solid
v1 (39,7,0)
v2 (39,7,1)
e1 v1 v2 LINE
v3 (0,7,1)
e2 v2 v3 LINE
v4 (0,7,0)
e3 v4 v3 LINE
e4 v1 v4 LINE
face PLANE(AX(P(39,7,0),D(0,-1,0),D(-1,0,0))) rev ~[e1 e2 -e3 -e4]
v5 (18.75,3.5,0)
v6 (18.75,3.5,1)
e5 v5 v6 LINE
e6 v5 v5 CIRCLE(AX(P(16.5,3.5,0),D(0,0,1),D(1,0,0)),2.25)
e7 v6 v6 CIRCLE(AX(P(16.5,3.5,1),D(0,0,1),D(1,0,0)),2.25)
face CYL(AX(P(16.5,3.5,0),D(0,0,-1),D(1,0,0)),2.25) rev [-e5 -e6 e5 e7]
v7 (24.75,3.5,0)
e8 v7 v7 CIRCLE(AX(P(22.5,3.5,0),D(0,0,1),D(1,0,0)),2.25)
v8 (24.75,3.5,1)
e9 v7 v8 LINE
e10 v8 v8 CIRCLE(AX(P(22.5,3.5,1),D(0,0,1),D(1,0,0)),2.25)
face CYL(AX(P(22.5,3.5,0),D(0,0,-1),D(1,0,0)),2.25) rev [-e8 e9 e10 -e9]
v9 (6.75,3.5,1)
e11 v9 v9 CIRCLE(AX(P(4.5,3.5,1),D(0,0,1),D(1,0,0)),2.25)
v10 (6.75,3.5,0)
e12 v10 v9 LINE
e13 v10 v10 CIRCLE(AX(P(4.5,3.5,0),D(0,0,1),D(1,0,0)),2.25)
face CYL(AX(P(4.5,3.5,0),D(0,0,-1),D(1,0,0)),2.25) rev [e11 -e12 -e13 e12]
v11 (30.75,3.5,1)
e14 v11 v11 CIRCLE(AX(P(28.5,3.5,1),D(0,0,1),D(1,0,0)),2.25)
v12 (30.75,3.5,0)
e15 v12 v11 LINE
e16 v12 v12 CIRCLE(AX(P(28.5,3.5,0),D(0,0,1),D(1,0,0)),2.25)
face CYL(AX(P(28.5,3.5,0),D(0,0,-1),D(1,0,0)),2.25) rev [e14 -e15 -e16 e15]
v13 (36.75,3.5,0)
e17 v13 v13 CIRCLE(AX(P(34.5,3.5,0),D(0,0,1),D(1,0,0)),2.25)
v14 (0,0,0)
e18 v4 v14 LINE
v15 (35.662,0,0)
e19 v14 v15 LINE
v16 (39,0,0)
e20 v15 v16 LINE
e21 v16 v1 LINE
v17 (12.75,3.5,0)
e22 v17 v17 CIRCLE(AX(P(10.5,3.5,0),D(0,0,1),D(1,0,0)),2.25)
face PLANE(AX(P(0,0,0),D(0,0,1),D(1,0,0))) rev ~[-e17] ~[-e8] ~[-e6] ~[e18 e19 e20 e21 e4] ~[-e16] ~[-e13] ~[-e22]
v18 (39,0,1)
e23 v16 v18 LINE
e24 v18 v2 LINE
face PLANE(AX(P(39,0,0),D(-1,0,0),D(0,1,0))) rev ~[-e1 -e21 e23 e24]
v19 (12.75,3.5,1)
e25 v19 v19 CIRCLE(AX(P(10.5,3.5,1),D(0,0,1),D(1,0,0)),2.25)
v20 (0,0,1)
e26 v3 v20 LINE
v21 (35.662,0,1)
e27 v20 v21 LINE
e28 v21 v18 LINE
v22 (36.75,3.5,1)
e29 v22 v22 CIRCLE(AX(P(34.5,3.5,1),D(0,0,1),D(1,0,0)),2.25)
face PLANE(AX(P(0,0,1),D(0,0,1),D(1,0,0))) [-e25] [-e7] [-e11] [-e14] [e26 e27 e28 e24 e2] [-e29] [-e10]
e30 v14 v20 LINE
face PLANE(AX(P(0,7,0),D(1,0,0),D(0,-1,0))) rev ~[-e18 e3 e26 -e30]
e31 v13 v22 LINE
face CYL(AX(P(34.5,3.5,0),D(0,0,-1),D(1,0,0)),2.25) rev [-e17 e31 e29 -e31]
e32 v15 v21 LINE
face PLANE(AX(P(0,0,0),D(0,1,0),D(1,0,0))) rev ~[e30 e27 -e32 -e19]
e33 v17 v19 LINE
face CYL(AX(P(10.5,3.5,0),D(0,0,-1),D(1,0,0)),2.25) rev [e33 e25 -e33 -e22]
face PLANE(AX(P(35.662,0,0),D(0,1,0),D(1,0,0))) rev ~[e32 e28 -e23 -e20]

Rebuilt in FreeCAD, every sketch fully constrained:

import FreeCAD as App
import Part
import Sketcher

V = App.Vector
Q = App.Units.Quantity

doc = App.newDocument("Part")
body = doc.addObject("PartDesign::Body", "Body")

# Sketch on XY plane
sketch1 = doc.addObject("Sketcher::SketchObject", "Sketch")
body.addObject(sketch1)
sketch1.AttachmentSupport = (doc.XY_Plane, [""])
sketch1.MapMode = "FlatFace"
sketch1.addGeometry(Part.LineSegment(V(0, 7, 0), V(0, 0, 0)), False)
sketch1.addGeometry(Part.LineSegment(V(0, 0, 0), V(39, 0, 0)), False)
sketch1.addGeometry(Part.LineSegment(V(39, 0, 0), V(39, 7, 0)), False)
sketch1.addGeometry(Part.LineSegment(V(39, 7, 0), V(0, 7, 0)), False)
sketch1.addGeometry(Part.Circle(V(4.5, 3.5, 0), V(0, 0, 1), 2.2), False)
sketch1.addGeometry(Part.Circle(V(10.5, 3.5, 0), V(0, 0, 1), 2.2), False)
sketch1.addGeometry(Part.Circle(V(16.5, 3.5, 0), V(0, 0, 1), 2.2), False)
sketch1.addGeometry(Part.Circle(V(22.5, 3.5, 0), V(0, 0, 1), 2.2), False)
sketch1.addGeometry(Part.Circle(V(28.5, 3.5, 0), V(0, 0, 1), 2.2), False)
sketch1.addGeometry(Part.Circle(V(34.5, 3.5, 0), V(0, 0, 1), 2.2), False)
sketch1.addConstraint(Sketcher.Constraint("Coincident", 0, 2, 1, 1))
sketch1.addConstraint(Sketcher.Constraint("Coincident", 1, 2, 2, 1))
sketch1.addConstraint(Sketcher.Constraint("Coincident", 2, 2, 3, 1))
sketch1.addConstraint(Sketcher.Constraint("Coincident", 3, 2, 0, 1))
sketch1.addConstraint(Sketcher.Constraint("Vertical", 0))
sketch1.addConstraint(Sketcher.Constraint("Horizontal", 1))
sketch1.addConstraint(Sketcher.Constraint("Vertical", 2))
sketch1.addConstraint(Sketcher.Constraint("Horizontal", 3))
sketch1.addConstraint(Sketcher.Constraint("Coincident", 0, 2, -1, 1))
sketch1.addConstraint(Sketcher.Constraint("Equal", 4, 5))
sketch1.addConstraint(Sketcher.Constraint("Equal", 5, 6))
sketch1.addConstraint(Sketcher.Constraint("Equal", 6, 7))
sketch1.addConstraint(Sketcher.Constraint("Equal", 7, 8))
sketch1.addConstraint(Sketcher.Constraint("Equal", 8, 9))
sketch1.addConstraint(Sketcher.Constraint("Horizontal", 4, 3, 5, 3))
sketch1.addConstraint(Sketcher.Constraint("Horizontal", 5, 3, 6, 3))
sketch1.addConstraint(Sketcher.Constraint("Horizontal", 6, 3, 7, 3))
sketch1.addConstraint(Sketcher.Constraint("Horizontal", 7, 3, 8, 3))
sketch1.addConstraint(Sketcher.Constraint("Horizontal", 8, 3, 9, 3))
sketch1.addConstraint(Sketcher.Constraint("Diameter", 4, Q("4.5 mm")))
sketch1.addConstraint(Sketcher.Constraint("DistanceX", 1, 1, 1, 2, Q("39 mm")))
sketch1.addConstraint(Sketcher.Constraint("DistanceY", 0, 2, 0, 1, Q("7 mm")))
sketch1.addConstraint(Sketcher.Constraint("DistanceX", 4, 3, 5, 3, Q("6 mm")))
sketch1.addConstraint(Sketcher.Constraint("DistanceX", 5, 3, 6, 3, Q("6 mm")))
sketch1.addConstraint(Sketcher.Constraint("DistanceX", 6, 3, 7, 3, Q("6 mm")))
sketch1.addConstraint(Sketcher.Constraint("DistanceX", 7, 3, 8, 3, Q("6 mm")))
sketch1.addConstraint(Sketcher.Constraint("DistanceX", 8, 3, 9, 3, Q("6 mm")))
sketch1.addConstraint(Sketcher.Constraint("DistanceX", -1, 1, 4, 3, Q("4.5 mm")))
sketch1.addConstraint(Sketcher.Constraint("DistanceY", -1, 1, 4, 3, Q("3.5 mm")))
pad1 = doc.addObject("PartDesign::Pad", "Pad")
body.addObject(pad1)
pad1.Profile = sketch1
pad1.Length = 1

doc.recompute()
